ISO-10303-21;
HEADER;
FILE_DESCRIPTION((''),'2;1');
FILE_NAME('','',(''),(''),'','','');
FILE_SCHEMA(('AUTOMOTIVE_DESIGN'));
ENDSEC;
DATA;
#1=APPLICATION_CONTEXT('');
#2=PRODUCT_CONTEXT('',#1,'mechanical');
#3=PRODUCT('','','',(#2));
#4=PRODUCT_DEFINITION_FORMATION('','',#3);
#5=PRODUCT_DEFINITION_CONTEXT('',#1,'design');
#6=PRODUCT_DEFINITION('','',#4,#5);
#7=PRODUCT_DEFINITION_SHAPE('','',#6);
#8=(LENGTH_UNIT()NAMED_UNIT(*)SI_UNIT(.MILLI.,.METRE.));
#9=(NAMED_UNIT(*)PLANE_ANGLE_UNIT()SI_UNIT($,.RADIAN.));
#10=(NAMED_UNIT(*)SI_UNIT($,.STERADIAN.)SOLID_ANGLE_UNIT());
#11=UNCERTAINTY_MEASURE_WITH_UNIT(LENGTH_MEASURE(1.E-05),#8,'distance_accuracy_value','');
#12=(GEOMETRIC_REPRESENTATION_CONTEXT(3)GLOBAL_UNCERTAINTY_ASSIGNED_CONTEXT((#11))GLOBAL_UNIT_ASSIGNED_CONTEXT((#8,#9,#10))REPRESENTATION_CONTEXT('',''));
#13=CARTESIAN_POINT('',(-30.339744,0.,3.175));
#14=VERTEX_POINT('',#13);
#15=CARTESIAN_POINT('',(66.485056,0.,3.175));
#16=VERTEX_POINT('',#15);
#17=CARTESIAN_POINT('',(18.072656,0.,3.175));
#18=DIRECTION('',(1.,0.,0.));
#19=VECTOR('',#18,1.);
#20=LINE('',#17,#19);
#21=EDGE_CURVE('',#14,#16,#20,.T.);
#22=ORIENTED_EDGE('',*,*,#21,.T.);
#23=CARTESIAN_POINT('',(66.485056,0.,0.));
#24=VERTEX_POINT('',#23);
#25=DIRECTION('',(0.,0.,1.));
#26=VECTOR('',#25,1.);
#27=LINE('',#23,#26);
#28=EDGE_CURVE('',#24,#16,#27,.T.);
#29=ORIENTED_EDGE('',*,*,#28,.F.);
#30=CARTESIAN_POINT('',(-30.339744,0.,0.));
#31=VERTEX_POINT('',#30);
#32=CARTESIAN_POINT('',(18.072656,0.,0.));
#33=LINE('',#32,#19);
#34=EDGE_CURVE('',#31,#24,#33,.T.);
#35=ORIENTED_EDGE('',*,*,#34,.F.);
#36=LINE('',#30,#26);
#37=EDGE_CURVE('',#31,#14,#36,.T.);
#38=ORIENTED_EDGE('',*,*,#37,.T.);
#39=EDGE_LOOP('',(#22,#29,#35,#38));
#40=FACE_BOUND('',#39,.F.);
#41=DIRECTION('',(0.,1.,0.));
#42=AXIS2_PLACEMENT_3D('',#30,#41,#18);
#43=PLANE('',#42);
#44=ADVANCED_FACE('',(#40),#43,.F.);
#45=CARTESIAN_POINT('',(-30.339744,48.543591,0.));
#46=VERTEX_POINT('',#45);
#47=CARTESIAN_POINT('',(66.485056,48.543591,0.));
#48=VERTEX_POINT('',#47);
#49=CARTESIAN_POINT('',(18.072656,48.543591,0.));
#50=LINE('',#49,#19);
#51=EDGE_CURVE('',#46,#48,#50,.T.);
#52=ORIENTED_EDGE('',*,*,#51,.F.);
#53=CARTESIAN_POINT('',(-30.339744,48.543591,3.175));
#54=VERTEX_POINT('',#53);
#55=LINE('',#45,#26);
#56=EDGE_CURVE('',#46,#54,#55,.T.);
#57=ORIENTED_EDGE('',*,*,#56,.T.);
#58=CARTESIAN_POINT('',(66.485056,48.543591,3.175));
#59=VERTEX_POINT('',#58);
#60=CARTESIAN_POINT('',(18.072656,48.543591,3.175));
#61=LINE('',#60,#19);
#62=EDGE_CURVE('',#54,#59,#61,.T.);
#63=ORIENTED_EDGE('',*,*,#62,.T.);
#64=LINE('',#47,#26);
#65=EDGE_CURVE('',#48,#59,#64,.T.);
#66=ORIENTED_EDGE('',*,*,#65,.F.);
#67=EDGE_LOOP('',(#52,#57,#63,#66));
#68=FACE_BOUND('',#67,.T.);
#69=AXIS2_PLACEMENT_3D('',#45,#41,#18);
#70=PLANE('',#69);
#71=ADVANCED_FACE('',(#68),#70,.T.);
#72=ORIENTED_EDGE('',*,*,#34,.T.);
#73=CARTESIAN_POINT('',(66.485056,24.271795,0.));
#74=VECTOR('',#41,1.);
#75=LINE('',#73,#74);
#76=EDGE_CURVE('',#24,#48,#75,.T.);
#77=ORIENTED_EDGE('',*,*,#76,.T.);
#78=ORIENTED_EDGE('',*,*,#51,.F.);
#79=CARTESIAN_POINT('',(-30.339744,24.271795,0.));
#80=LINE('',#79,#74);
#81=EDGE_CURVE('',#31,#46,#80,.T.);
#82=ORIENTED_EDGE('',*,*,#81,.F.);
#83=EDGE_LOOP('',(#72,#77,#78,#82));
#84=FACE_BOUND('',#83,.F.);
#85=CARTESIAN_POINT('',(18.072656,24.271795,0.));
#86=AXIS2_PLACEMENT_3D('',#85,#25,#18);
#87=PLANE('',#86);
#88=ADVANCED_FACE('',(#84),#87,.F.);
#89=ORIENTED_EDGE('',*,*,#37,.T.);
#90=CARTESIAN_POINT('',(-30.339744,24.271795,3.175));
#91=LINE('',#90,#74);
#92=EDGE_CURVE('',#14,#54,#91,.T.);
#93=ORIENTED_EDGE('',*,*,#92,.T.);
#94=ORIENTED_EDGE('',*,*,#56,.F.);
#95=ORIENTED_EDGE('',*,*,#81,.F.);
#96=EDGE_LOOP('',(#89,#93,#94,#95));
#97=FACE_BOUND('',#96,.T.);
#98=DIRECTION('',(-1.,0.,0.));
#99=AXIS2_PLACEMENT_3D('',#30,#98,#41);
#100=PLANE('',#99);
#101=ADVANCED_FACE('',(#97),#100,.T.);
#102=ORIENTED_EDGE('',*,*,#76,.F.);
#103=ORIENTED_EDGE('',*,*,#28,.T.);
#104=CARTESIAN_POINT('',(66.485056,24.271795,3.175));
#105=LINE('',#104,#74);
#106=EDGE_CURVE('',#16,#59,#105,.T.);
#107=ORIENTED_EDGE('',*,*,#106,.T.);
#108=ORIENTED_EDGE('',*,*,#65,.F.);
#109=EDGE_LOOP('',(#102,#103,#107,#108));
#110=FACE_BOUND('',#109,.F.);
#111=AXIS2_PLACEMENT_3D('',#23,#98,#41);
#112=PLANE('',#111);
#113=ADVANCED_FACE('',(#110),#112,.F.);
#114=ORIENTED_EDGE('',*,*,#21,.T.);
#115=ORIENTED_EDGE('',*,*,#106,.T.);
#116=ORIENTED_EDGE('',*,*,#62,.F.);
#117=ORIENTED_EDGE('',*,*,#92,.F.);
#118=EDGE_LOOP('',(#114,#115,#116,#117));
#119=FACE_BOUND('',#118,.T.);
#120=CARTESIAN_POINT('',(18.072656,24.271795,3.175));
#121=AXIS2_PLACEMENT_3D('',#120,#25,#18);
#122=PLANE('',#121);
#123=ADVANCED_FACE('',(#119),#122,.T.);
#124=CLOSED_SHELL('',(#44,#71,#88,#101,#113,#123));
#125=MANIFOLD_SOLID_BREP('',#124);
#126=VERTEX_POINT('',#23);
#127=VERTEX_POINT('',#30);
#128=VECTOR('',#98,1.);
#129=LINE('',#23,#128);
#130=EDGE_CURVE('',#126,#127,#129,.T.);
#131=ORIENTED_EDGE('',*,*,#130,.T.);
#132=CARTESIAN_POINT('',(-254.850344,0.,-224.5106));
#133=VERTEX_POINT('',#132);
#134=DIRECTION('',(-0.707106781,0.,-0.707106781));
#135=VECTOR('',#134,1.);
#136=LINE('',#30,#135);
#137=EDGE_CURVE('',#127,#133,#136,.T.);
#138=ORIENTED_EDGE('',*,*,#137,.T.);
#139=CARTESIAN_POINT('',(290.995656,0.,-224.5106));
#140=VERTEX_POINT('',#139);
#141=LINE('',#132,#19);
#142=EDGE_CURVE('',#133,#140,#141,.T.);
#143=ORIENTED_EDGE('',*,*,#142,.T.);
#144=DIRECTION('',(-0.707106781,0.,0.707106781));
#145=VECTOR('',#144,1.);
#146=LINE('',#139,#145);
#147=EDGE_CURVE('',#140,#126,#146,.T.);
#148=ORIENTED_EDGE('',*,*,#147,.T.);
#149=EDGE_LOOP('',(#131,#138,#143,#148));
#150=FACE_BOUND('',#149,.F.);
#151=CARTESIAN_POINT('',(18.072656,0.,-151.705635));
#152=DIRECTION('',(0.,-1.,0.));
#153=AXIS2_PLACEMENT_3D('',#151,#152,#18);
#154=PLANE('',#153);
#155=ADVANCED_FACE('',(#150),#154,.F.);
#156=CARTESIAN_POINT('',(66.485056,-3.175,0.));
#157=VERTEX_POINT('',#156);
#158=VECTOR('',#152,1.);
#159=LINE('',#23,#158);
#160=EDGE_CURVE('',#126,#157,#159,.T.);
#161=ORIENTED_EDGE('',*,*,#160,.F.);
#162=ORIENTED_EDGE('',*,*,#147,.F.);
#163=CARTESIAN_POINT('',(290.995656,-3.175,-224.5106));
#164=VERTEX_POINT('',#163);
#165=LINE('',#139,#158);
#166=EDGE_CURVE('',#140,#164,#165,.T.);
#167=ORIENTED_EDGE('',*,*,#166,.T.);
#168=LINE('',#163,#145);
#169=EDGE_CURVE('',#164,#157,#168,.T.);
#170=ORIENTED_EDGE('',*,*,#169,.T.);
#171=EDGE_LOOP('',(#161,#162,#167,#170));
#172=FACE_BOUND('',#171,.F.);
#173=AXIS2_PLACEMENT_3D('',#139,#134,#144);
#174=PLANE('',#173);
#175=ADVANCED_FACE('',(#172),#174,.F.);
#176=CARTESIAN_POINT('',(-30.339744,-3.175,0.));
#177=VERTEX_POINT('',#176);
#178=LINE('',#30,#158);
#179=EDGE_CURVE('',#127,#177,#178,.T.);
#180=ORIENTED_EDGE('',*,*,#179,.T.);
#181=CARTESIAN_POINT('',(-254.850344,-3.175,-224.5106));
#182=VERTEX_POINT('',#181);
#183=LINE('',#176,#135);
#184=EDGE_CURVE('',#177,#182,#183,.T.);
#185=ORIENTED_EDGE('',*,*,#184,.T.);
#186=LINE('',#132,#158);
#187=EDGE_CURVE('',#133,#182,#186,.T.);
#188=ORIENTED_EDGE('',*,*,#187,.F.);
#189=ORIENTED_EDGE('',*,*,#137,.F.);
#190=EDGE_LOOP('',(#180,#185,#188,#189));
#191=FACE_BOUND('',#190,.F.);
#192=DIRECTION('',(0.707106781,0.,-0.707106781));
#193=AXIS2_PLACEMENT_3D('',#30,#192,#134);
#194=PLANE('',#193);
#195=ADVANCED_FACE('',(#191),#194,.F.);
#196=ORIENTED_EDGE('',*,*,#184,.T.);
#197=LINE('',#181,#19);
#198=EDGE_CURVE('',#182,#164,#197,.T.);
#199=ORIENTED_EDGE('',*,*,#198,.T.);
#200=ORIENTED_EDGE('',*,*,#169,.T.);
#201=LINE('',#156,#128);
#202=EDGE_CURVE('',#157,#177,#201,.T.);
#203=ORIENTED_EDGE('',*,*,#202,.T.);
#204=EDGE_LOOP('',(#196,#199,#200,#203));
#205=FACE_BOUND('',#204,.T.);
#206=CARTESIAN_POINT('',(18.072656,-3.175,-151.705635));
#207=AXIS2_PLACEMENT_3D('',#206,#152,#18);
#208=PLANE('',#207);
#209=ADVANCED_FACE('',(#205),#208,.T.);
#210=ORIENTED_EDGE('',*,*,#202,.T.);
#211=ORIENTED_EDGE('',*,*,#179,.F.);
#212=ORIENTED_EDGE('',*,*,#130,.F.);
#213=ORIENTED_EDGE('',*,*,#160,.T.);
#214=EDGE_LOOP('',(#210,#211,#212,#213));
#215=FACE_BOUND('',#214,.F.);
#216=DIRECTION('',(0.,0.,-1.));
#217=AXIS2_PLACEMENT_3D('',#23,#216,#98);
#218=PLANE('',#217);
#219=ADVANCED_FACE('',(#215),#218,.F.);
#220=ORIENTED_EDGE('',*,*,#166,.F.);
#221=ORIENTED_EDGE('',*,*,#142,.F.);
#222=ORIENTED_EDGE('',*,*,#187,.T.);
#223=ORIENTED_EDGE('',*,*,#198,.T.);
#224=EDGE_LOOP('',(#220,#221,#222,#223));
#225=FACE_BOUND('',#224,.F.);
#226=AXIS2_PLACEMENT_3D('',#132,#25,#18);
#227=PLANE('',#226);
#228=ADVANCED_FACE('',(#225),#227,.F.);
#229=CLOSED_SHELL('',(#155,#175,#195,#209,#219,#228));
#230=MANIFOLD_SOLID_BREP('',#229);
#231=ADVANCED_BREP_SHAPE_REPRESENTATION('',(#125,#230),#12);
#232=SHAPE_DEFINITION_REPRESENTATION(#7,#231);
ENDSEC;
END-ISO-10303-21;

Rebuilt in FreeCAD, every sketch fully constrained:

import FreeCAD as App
import Part
import Sketcher
from FreeCAD import Vector
Q = App.Units.Quantity

doc = App.newDocument("Part")
body = doc.addObject("PartDesign::Body", "Body")

sketch1 = body.newObject("Sketcher::SketchObject", "Sketch")
sketch1.AttachmentSupport = (doc.getObject("XZ_Plane"), [""])
sketch1.MapMode = "FlatFace"
sketch1.addGeometry(Part.LineSegment(Vector(66.485056, 0, 0), Vector(-30.339744, 0, 0)), False)
sketch1.addGeometry(Part.LineSegment(Vector(-30.339744, 0, 0), Vector(-254.850344, -224.5106, 0)), False)
sketch1.addGeometry(Part.LineSegment(Vector(-254.850344, -224.5106, 0), Vector(290.995656, -224.5106, 0)), False)
sketch1.addGeometry(Part.LineSegment(Vector(290.995656, -224.5106, 0), Vector(66.485056, 0, 0)), False)
sketch1.addConstraint(Sketcher.Constraint("Coincident", 0, 2, 1, 1))
sketch1.addConstraint(Sketcher.Constraint("Coincident", 1, 2, 2, 1))
sketch1.addConstraint(Sketcher.Constraint("Coincident", 2, 2, 3, 1))
sketch1.addConstraint(Sketcher.Constraint("Coincident", 3, 2, 0, 1))
sketch1.addConstraint(Sketcher.Constraint("Horizontal", 0))
sketch1.addConstraint(Sketcher.Constraint("Horizontal", 2))
sketch1.addConstraint(Sketcher.Constraint("PointOnObject", 0, 2, -1))
sketch1.addConstraint(Sketcher.Constraint("Perpendicular", 1, 3))
sketch1.addConstraint(Sketcher.Constraint("Equal", 1, 3))
sketch1.addConstraint(Sketcher.Constraint("DistanceX", 2, 1, 2, 2, Q("21.49 in")))
sketch1.addConstraint(Sketcher.Constraint("DistanceX", 0, 2, 0, 1, Q("3.812 in")))
sketch1.addConstraint(Sketcher.Constraint("DistanceX", 0, 2, -1, 1, Q("30.339744 mm")))
pad1 = body.newObject("PartDesign::Pad", "Pad")
pad1.Profile = sketch1
pad1.Length = Q("0.125 in")
body2 = doc.addObject("PartDesign::Body", "Body001")

sketch2 = body2.newObject("Sketcher::SketchObject", "Sketch001")
sketch2.AttachmentSupport = (doc.getObject("XY_Plane001"), [""])
sketch2.MapMode = "FlatFace"
sketch2.addGeometry(Part.LineSegment(Vector(-30.339744, 48.543591, 0), Vector(-30.339744, 0, 0)), False)
sketch2.addGeometry(Part.LineSegment(Vector(-30.339744, 0, 0), Vector(66.485056, 0, 0)), False)
sketch2.addGeometry(Part.LineSegment(Vector(66.485056, 0, 0), Vector(66.485056, 48.543591, 0)), False)
sketch2.addGeometry(Part.LineSegment(Vector(66.485056, 48.543591, 0), Vector(-30.339744, 48.543591, 0)), False)
sketch2.addConstraint(Sketcher.Constraint("Coincident", 0, 2, 1, 1))
sketch2.addConstraint(Sketcher.Constraint("Coincident", 1, 2, 2, 1))
sketch2.addConstraint(Sketcher.Constraint("Coincident", 2, 2, 3, 1))
sketch2.addConstraint(Sketcher.Constraint("Coincident", 3, 2, 0, 1))
sketch2.addConstraint(Sketcher.Constraint("Vertical", 0))
sketch2.addConstraint(Sketcher.Constraint("Horizontal", 1))
sketch2.addConstraint(Sketcher.Constraint("Vertical", 2))
sketch2.addConstraint(Sketcher.Constraint("Horizontal", 3))
sketch2.addConstraint(Sketcher.Constraint("PointOnObject", 0, 2, -1))
sketch2.addConstraint(Sketcher.Constraint("DistanceX", 1, 1, 1, 2, Q("3.812 in")))
sketch2.addConstraint(Sketcher.Constraint("DistanceY", 0, 2, 0, 1, Q("48.543591 mm")))
sketch2.addConstraint(Sketcher.Constraint("DistanceX", 0, 2, -1, 1, Q("30.339744 mm")))
pad2 = body2.newObject("PartDesign::Pad", "Pad001")
pad2.Profile = sketch2
pad2.Length = Q("0.125 in")

doc.recompute()
